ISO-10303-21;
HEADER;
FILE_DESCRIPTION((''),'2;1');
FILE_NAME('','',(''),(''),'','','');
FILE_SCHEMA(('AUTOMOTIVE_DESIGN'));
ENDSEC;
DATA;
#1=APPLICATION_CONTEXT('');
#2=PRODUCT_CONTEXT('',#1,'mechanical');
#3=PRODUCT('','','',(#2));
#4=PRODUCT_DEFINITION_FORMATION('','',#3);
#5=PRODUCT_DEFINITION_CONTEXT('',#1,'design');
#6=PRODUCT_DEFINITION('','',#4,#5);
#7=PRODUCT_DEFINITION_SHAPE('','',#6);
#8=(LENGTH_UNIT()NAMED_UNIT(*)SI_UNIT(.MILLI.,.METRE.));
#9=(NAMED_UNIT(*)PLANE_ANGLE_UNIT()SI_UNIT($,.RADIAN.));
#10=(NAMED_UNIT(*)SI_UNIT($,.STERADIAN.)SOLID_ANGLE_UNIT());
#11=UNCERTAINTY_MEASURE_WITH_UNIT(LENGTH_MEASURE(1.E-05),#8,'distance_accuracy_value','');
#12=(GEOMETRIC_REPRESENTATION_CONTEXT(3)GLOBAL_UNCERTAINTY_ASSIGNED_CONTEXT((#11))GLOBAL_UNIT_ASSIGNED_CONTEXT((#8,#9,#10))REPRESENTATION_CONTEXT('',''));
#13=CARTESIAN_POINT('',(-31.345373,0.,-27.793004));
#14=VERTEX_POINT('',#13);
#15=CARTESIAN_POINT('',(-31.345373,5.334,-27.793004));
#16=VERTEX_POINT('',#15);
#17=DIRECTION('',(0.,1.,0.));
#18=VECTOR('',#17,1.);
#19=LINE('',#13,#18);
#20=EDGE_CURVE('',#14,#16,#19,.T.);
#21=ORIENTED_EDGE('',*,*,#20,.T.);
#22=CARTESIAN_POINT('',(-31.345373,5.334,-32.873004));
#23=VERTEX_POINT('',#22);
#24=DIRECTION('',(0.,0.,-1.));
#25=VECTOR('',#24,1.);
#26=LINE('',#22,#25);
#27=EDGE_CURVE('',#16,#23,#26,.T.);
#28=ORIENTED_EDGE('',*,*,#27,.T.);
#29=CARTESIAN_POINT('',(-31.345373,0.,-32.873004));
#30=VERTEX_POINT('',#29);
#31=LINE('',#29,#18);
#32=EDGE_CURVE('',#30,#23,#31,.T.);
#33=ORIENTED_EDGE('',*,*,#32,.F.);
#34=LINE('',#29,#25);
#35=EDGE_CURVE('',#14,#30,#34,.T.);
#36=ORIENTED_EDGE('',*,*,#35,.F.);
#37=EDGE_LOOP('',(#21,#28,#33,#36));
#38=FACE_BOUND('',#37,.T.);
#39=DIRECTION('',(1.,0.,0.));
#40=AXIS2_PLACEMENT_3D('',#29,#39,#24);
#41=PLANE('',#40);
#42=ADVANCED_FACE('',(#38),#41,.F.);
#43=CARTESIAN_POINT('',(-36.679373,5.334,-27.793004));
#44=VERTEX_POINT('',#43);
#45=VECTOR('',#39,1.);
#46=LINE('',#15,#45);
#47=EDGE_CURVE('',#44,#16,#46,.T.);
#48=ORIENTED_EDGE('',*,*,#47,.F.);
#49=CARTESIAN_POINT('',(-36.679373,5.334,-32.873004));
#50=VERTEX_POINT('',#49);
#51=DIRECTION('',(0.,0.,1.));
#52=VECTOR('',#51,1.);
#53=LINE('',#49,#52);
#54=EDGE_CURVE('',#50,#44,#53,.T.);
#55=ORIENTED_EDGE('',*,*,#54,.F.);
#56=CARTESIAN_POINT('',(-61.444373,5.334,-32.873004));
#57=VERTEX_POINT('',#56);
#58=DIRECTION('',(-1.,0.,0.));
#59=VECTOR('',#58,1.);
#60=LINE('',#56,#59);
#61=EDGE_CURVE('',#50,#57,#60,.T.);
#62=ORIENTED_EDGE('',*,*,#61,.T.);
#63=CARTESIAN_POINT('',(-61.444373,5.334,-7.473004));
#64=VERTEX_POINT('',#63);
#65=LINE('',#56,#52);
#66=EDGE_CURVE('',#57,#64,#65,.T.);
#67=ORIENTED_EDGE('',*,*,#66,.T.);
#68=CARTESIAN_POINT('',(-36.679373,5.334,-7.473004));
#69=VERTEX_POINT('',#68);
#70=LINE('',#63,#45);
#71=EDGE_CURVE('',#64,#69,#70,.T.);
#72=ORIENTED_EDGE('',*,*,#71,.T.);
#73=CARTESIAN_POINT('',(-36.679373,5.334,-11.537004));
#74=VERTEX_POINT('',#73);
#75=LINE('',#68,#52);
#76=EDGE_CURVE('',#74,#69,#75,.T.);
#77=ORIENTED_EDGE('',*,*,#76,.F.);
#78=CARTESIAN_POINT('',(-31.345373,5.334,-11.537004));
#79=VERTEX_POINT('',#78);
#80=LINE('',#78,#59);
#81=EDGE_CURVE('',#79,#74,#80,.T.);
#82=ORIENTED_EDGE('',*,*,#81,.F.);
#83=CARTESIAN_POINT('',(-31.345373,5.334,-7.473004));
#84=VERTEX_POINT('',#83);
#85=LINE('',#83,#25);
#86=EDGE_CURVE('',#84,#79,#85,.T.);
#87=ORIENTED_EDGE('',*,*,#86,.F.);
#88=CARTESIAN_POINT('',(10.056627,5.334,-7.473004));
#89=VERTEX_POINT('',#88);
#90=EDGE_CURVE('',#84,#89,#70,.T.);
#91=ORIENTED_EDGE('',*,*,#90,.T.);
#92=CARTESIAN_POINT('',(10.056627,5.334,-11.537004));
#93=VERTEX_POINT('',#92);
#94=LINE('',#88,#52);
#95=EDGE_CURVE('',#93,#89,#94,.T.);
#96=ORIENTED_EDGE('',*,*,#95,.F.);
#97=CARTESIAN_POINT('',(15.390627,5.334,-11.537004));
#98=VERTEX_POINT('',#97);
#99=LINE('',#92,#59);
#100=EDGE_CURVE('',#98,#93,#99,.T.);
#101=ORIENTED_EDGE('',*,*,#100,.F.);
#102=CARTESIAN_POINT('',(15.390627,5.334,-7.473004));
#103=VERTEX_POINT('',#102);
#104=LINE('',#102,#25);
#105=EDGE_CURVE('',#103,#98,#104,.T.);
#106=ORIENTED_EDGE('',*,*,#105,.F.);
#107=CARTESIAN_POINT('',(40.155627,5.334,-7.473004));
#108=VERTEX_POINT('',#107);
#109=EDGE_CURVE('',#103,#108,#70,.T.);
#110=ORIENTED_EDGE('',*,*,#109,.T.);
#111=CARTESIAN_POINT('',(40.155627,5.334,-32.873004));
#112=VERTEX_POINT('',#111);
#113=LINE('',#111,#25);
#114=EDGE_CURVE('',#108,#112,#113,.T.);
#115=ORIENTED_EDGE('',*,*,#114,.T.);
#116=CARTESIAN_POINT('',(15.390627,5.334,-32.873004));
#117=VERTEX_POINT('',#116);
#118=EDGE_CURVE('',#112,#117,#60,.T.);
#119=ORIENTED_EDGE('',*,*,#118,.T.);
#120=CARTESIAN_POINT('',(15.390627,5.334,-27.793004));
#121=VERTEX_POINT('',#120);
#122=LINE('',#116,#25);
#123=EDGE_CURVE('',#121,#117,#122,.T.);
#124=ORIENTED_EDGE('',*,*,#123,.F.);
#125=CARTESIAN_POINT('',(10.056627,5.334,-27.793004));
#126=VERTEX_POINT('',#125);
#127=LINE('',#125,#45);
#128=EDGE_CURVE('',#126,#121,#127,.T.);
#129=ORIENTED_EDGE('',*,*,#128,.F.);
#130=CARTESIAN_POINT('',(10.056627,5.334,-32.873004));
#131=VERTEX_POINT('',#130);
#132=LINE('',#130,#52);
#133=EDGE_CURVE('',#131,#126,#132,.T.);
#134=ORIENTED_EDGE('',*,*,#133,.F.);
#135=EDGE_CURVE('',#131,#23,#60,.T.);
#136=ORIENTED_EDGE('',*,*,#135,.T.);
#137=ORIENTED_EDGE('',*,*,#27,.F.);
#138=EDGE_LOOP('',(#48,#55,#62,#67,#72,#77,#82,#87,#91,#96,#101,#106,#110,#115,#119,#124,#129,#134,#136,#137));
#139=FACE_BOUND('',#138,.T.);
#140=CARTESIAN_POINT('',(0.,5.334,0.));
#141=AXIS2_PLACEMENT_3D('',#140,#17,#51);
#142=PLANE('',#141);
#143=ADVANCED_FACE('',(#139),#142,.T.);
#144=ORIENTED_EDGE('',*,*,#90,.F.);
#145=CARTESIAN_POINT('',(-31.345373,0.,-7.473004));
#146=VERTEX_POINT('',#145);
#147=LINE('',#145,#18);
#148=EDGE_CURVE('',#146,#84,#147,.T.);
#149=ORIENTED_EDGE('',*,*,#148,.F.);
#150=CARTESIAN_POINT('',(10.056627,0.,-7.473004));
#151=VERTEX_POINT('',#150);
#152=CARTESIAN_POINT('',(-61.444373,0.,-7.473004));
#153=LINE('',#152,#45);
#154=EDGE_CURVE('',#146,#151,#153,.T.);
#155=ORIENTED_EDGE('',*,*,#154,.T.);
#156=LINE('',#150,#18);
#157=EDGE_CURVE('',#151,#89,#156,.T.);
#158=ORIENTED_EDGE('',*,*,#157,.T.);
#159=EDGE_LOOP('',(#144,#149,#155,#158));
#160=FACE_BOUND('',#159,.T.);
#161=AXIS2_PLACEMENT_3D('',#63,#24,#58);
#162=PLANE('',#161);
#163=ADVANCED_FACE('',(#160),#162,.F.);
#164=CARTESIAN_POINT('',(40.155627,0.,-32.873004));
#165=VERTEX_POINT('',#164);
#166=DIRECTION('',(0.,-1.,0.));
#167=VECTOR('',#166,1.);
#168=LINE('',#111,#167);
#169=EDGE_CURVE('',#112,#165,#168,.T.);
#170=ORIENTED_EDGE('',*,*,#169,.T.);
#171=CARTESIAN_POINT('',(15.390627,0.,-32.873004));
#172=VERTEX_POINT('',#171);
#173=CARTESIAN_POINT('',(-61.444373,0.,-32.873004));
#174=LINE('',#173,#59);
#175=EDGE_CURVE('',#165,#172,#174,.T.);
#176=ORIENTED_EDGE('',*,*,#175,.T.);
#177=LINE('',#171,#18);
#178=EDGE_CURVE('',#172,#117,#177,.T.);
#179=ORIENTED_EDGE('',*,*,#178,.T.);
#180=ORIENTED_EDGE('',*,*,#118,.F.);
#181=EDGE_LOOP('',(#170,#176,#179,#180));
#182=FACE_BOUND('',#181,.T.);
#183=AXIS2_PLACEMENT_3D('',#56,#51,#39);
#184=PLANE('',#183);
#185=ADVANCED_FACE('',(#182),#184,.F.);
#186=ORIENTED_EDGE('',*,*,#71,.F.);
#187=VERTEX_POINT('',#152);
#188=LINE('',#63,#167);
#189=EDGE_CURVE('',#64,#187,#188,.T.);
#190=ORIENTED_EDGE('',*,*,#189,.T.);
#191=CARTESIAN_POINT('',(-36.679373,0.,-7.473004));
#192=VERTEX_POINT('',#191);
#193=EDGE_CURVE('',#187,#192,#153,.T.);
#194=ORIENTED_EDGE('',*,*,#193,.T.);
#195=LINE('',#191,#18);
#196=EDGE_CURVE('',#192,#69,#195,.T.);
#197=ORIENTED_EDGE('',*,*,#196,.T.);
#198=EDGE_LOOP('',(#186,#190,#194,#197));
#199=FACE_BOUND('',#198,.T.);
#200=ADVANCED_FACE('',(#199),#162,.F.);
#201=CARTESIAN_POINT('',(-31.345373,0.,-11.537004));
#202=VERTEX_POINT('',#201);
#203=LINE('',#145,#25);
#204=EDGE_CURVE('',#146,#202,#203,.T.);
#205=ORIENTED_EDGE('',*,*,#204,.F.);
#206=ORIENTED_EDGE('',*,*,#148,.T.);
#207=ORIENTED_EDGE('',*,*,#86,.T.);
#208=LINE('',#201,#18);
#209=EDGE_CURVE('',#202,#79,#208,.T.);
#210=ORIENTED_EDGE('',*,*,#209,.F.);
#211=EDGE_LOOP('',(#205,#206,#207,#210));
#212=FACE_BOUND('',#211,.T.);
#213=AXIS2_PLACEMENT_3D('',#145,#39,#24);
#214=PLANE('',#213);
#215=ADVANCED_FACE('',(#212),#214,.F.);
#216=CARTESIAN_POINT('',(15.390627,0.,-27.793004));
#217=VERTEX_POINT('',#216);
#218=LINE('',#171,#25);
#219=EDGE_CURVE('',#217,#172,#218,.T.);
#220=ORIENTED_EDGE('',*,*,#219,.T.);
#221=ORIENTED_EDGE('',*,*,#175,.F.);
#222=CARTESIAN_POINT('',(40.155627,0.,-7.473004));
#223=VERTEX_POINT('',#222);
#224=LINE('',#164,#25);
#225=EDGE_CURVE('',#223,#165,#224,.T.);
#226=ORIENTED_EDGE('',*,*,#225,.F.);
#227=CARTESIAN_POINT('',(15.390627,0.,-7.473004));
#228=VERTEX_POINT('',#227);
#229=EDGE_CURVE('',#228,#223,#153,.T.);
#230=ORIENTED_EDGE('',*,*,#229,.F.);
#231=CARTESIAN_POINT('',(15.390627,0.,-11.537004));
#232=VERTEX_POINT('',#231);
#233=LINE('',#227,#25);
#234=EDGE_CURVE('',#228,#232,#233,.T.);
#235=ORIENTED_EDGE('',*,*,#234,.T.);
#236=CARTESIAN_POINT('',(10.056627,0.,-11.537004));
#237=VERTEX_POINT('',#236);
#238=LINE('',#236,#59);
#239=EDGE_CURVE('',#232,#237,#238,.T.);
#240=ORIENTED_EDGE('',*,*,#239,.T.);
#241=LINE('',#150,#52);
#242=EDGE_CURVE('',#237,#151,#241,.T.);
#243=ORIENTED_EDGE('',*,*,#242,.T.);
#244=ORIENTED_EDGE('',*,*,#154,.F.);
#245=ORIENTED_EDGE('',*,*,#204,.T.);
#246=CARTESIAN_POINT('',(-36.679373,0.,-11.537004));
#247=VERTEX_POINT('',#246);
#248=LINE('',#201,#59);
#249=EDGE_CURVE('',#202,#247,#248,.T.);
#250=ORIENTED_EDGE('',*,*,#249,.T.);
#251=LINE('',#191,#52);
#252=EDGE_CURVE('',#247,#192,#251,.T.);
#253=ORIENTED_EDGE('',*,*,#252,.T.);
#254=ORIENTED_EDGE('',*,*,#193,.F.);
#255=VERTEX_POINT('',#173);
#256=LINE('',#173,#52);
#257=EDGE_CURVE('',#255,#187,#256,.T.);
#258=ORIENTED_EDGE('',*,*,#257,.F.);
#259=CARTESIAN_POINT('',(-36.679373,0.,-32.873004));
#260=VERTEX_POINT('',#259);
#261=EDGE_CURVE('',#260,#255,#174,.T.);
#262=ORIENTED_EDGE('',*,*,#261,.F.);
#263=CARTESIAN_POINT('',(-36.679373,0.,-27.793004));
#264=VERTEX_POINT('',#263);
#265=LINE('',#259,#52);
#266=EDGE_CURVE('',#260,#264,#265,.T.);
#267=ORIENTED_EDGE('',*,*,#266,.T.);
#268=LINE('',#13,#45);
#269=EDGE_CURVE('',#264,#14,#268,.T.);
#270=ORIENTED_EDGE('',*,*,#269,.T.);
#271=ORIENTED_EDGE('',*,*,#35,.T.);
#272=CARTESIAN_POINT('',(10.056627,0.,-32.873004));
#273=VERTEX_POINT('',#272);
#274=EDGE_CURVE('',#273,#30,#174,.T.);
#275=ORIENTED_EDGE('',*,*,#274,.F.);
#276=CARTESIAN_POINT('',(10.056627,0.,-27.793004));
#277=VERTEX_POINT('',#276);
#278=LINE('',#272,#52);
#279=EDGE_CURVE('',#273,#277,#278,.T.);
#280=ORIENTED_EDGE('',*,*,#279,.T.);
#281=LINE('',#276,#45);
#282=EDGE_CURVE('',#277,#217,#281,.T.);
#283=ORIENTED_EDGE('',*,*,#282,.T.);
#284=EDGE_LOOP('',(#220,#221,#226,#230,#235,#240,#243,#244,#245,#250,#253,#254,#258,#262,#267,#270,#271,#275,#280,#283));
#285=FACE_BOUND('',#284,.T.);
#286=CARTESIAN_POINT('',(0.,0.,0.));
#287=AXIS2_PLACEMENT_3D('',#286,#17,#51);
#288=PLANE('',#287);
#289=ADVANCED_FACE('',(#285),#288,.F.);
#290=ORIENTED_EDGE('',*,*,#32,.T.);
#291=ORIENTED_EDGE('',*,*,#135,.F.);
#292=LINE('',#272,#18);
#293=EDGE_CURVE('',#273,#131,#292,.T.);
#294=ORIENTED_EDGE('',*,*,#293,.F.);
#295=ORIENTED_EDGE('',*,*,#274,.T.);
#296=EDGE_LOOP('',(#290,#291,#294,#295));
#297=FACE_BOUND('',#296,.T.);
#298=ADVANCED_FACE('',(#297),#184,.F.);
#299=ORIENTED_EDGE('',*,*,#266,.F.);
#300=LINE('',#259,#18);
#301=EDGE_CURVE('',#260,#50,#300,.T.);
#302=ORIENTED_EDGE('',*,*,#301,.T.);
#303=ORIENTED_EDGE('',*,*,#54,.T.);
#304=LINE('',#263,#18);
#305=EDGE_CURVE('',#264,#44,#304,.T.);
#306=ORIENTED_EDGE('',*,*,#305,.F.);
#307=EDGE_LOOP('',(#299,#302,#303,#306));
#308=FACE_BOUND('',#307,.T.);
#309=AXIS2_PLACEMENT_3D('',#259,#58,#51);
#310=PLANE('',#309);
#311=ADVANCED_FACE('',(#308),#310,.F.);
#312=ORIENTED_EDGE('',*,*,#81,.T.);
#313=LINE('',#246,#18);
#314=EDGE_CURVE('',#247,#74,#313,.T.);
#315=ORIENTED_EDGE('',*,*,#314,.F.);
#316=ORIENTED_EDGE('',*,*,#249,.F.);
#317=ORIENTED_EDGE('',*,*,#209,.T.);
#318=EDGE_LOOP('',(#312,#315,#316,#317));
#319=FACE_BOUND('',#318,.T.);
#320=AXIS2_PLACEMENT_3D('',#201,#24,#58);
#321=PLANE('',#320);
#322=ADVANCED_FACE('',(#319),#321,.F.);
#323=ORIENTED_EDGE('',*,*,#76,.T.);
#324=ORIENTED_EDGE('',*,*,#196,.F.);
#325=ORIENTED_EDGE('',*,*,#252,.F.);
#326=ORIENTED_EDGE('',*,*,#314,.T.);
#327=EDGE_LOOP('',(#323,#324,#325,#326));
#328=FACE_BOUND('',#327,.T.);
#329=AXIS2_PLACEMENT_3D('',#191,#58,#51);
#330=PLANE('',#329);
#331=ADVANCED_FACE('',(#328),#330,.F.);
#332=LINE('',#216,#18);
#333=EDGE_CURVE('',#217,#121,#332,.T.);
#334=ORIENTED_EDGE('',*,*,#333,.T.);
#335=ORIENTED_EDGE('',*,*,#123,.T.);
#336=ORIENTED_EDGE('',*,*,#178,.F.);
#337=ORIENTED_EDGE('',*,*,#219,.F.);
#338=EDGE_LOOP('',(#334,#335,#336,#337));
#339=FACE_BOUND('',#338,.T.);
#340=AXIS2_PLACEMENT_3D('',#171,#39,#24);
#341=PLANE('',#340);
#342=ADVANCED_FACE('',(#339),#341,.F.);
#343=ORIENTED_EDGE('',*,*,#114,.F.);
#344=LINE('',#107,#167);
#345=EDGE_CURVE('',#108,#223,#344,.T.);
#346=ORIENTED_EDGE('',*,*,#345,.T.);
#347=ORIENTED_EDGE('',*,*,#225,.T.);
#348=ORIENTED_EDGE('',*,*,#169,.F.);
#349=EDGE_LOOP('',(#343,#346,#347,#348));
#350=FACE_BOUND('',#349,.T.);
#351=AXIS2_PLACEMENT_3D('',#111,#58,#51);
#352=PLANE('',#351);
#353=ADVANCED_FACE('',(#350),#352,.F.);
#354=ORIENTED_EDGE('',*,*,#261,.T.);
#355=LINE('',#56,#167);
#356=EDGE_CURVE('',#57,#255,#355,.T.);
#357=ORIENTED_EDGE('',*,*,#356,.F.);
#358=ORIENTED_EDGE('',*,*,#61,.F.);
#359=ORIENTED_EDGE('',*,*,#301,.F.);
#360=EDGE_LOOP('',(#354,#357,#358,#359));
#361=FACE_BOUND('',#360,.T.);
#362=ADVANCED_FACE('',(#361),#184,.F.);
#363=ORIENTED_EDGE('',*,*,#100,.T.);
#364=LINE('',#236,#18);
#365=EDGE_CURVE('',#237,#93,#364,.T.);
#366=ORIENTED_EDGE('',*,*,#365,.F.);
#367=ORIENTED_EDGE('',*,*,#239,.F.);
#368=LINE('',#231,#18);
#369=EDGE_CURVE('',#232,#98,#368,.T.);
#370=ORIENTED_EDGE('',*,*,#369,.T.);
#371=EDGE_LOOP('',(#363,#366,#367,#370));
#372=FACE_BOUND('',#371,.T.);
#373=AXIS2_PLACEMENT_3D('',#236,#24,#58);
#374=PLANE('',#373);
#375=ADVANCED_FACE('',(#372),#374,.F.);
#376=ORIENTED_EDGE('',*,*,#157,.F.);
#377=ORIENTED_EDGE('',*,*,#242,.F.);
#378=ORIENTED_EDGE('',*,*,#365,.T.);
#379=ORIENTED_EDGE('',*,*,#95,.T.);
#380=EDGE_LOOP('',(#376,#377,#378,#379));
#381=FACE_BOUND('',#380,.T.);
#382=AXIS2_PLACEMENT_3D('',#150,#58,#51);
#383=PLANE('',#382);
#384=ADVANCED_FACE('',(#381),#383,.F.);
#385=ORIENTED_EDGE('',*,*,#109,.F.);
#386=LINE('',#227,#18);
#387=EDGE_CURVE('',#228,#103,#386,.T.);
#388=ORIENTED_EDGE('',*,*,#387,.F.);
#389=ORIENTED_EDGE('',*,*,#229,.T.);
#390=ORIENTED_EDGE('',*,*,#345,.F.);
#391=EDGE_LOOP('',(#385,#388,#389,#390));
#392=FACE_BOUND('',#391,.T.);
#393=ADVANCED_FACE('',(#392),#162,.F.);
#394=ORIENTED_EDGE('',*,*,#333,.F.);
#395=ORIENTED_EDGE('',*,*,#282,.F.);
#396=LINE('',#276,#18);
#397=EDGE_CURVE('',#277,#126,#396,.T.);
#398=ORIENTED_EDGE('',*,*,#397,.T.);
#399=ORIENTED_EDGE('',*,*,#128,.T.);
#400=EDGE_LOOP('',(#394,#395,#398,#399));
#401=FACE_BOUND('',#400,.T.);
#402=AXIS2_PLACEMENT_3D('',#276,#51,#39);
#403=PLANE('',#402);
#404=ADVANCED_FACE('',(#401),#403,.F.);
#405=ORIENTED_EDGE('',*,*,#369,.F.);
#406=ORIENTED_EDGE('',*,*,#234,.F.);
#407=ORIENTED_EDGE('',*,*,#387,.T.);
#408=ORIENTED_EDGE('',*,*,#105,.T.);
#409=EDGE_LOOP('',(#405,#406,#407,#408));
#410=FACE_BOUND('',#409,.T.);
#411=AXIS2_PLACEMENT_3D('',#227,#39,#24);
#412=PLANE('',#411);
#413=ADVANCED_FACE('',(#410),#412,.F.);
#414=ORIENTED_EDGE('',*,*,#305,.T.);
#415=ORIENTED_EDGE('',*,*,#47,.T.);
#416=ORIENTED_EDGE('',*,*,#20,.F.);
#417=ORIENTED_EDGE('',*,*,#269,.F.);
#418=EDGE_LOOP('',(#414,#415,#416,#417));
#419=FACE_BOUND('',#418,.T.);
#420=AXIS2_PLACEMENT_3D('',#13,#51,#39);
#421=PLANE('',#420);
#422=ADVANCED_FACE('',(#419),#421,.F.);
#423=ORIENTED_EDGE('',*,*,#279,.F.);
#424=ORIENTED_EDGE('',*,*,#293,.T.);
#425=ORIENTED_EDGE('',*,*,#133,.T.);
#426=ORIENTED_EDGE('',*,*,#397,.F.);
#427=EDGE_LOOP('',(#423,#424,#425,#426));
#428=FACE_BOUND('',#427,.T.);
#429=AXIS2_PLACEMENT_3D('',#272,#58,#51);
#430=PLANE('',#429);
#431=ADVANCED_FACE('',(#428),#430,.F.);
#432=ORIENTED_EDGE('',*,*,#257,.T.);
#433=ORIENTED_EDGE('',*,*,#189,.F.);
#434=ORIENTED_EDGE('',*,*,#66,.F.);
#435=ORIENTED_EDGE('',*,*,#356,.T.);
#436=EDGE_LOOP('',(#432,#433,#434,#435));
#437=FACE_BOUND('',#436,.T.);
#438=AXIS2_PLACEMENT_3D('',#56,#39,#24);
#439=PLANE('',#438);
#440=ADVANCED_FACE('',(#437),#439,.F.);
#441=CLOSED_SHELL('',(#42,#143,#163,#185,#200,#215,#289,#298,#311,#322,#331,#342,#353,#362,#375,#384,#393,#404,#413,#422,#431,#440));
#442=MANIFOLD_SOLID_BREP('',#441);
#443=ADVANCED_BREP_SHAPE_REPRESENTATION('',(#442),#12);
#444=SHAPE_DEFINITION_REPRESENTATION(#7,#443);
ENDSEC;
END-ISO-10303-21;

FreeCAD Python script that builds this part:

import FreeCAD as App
import Part
import Sketcher
from FreeCAD import Vector
Q = App.Units.Quantity


def add_polygon(sketch, points):
    """Adds a closed chain of lines whose ends are joined by coincident constraints."""
    first, n = sketch.GeometryCount, len(points)
    for a, b in zip(points, points[1:] + points[:1]):
        sketch.addGeometry(Part.LineSegment(App.Vector(*a, 0), App.Vector(*b, 0)), False)
    for i in range(n):
        sketch.addConstraint(Sketcher.Constraint("Coincident", first + i, 2, first + (i + 1) % n, 1))

doc = App.newDocument("Part")
body = doc.addObject("PartDesign::Body", "Body")

sketch1 = body.newObject("Sketcher::SketchObject", "Sketch")
sketch1.AttachmentSupport = (doc.getObject("XZ_Plane"), [""])
sketch1.MapMode = "FlatFace"
add_polygon(sketch1, [(-61, -33), (-61, -7), (40, -7), (40, -33)])
sketch1.addConstraint([
    Sketcher.Constraint("Vertical", 0),
    Sketcher.Constraint("Horizontal", 1),
    Sketcher.Constraint("Vertical", 2),
    Sketcher.Constraint("Horizontal", 3),
    Sketcher.Constraint("DistanceX", 1, 1, 1, 2, Q("4 in")),
    Sketcher.Constraint("DistanceY", 0, 1, 0, 2, Q("1 in")),
    Sketcher.Constraint("DistanceX", 0, 2, -1, 1, Q("61.444373 mm")),
    Sketcher.Constraint("DistanceY", 0, 2, -1, 1, Q("7.473004 mm")),
])
pad1 = body.newObject("PartDesign::Pad", "Pad")
pad1.Profile = sketch1
pad1.Length = Q("0.21 in")
pad1.Reversed = True

sketch2 = body.newObject("Sketcher::SketchObject", "Sketch001")
sketch2.AttachmentSupport = (doc.getObject("XZ_Plane"), [""])
sketch2.MapMode = "FlatFace"
sketch2.AttachmentOffset = App.Placement(Vector(0, 0, -0.21 * 25.4), App.Rotation())
add_polygon(sketch2, [(-36.7, -11.5), (-36.7, -7.5), (-31.3, -7.5), (-31.3, -11.5)])
add_polygon(sketch2, [(10.1, -32.9), (10.1, -27.8), (15.4, -27.8), (15.4, -32.9)])
add_polygon(sketch2, [(10.1, -11.5), (10.1, -7.5), (15.4, -7.5), (15.4, -11.5)])
add_polygon(sketch2, [(-36.7, -32.9), (-36.7, -27.8), (-31.3, -27.8), (-31.3, -32.9)])
sketch2.addConstraint([
    Sketcher.Constraint("Vertical", 0),
    Sketcher.Constraint("Horizontal", 1),
    Sketcher.Constraint("Vertical", 2),
    Sketcher.Constraint("Horizontal", 3),
    Sketcher.Constraint("Vertical", 4),
    Sketcher.Constraint("Horizontal", 5),
    Sketcher.Constraint("Vertical", 6),
    Sketcher.Constraint("Horizontal", 7),
    Sketcher.Constraint("Vertical", 8),
    Sketcher.Constraint("Horizontal", 9),
    Sketcher.Constraint("Vertical", 10),
    Sketcher.Constraint("Horizontal", 11),
    Sketcher.Constraint("Vertical", 12),
    Sketcher.Constraint("Horizontal", 13),
    Sketcher.Constraint("Vertical", 14),
    Sketcher.Constraint("Horizontal", 15),
    Sketcher.Constraint("Horizontal", 1, 2, 8, 2),
    Sketcher.Constraint("Horizontal", 3, 2, 10, 2),
    Sketcher.Constraint("Horizontal", 5, 2, 12, 2),
    Sketcher.Constraint("Horizontal", 7, 2, 14, 2),
    Sketcher.Constraint("Vertical", 7, 2, 8, 2),
    Sketcher.Constraint("Vertical", 6, 2, 9, 2),
    Sketcher.Constraint("Vertical", 3, 2, 12, 2),
    Sketcher.Constraint("Vertical", 2, 2, 13, 2),
    Sketcher.Constraint("Equal", 3, 5),
    Sketcher.Constraint("DistanceY", 4, 1, 4, 2, Q("0.2 in")),
    Sketcher.Constraint("DistanceY", 6, 2, 1, 2, Q("1 in")),
    Sketcher.Constraint("DistanceX", 1, 1, 1, 2, Q("0.21 in")),
    Sketcher.Constraint("DistanceY", 0, 1, 0, 2, Q("0.16 in")),
    Sketcher.Constraint("DistanceX", 2, 2, 4, 2, Q("1.63 in")),
    Sketcher.Constraint("DistanceX", 0, 2, -1, 1, Q("36.679373 mm")),
    Sketcher.Constraint("DistanceY", 0, 2, -1, 1, Q("7.473004 mm")),
])
pocket1 = body.newObject("PartDesign::Pocket", "Pocket")
pocket1.Profile = sketch2
pocket1.Type = "ThroughAll"
pocket1.Reversed = True

doc.recompute()
